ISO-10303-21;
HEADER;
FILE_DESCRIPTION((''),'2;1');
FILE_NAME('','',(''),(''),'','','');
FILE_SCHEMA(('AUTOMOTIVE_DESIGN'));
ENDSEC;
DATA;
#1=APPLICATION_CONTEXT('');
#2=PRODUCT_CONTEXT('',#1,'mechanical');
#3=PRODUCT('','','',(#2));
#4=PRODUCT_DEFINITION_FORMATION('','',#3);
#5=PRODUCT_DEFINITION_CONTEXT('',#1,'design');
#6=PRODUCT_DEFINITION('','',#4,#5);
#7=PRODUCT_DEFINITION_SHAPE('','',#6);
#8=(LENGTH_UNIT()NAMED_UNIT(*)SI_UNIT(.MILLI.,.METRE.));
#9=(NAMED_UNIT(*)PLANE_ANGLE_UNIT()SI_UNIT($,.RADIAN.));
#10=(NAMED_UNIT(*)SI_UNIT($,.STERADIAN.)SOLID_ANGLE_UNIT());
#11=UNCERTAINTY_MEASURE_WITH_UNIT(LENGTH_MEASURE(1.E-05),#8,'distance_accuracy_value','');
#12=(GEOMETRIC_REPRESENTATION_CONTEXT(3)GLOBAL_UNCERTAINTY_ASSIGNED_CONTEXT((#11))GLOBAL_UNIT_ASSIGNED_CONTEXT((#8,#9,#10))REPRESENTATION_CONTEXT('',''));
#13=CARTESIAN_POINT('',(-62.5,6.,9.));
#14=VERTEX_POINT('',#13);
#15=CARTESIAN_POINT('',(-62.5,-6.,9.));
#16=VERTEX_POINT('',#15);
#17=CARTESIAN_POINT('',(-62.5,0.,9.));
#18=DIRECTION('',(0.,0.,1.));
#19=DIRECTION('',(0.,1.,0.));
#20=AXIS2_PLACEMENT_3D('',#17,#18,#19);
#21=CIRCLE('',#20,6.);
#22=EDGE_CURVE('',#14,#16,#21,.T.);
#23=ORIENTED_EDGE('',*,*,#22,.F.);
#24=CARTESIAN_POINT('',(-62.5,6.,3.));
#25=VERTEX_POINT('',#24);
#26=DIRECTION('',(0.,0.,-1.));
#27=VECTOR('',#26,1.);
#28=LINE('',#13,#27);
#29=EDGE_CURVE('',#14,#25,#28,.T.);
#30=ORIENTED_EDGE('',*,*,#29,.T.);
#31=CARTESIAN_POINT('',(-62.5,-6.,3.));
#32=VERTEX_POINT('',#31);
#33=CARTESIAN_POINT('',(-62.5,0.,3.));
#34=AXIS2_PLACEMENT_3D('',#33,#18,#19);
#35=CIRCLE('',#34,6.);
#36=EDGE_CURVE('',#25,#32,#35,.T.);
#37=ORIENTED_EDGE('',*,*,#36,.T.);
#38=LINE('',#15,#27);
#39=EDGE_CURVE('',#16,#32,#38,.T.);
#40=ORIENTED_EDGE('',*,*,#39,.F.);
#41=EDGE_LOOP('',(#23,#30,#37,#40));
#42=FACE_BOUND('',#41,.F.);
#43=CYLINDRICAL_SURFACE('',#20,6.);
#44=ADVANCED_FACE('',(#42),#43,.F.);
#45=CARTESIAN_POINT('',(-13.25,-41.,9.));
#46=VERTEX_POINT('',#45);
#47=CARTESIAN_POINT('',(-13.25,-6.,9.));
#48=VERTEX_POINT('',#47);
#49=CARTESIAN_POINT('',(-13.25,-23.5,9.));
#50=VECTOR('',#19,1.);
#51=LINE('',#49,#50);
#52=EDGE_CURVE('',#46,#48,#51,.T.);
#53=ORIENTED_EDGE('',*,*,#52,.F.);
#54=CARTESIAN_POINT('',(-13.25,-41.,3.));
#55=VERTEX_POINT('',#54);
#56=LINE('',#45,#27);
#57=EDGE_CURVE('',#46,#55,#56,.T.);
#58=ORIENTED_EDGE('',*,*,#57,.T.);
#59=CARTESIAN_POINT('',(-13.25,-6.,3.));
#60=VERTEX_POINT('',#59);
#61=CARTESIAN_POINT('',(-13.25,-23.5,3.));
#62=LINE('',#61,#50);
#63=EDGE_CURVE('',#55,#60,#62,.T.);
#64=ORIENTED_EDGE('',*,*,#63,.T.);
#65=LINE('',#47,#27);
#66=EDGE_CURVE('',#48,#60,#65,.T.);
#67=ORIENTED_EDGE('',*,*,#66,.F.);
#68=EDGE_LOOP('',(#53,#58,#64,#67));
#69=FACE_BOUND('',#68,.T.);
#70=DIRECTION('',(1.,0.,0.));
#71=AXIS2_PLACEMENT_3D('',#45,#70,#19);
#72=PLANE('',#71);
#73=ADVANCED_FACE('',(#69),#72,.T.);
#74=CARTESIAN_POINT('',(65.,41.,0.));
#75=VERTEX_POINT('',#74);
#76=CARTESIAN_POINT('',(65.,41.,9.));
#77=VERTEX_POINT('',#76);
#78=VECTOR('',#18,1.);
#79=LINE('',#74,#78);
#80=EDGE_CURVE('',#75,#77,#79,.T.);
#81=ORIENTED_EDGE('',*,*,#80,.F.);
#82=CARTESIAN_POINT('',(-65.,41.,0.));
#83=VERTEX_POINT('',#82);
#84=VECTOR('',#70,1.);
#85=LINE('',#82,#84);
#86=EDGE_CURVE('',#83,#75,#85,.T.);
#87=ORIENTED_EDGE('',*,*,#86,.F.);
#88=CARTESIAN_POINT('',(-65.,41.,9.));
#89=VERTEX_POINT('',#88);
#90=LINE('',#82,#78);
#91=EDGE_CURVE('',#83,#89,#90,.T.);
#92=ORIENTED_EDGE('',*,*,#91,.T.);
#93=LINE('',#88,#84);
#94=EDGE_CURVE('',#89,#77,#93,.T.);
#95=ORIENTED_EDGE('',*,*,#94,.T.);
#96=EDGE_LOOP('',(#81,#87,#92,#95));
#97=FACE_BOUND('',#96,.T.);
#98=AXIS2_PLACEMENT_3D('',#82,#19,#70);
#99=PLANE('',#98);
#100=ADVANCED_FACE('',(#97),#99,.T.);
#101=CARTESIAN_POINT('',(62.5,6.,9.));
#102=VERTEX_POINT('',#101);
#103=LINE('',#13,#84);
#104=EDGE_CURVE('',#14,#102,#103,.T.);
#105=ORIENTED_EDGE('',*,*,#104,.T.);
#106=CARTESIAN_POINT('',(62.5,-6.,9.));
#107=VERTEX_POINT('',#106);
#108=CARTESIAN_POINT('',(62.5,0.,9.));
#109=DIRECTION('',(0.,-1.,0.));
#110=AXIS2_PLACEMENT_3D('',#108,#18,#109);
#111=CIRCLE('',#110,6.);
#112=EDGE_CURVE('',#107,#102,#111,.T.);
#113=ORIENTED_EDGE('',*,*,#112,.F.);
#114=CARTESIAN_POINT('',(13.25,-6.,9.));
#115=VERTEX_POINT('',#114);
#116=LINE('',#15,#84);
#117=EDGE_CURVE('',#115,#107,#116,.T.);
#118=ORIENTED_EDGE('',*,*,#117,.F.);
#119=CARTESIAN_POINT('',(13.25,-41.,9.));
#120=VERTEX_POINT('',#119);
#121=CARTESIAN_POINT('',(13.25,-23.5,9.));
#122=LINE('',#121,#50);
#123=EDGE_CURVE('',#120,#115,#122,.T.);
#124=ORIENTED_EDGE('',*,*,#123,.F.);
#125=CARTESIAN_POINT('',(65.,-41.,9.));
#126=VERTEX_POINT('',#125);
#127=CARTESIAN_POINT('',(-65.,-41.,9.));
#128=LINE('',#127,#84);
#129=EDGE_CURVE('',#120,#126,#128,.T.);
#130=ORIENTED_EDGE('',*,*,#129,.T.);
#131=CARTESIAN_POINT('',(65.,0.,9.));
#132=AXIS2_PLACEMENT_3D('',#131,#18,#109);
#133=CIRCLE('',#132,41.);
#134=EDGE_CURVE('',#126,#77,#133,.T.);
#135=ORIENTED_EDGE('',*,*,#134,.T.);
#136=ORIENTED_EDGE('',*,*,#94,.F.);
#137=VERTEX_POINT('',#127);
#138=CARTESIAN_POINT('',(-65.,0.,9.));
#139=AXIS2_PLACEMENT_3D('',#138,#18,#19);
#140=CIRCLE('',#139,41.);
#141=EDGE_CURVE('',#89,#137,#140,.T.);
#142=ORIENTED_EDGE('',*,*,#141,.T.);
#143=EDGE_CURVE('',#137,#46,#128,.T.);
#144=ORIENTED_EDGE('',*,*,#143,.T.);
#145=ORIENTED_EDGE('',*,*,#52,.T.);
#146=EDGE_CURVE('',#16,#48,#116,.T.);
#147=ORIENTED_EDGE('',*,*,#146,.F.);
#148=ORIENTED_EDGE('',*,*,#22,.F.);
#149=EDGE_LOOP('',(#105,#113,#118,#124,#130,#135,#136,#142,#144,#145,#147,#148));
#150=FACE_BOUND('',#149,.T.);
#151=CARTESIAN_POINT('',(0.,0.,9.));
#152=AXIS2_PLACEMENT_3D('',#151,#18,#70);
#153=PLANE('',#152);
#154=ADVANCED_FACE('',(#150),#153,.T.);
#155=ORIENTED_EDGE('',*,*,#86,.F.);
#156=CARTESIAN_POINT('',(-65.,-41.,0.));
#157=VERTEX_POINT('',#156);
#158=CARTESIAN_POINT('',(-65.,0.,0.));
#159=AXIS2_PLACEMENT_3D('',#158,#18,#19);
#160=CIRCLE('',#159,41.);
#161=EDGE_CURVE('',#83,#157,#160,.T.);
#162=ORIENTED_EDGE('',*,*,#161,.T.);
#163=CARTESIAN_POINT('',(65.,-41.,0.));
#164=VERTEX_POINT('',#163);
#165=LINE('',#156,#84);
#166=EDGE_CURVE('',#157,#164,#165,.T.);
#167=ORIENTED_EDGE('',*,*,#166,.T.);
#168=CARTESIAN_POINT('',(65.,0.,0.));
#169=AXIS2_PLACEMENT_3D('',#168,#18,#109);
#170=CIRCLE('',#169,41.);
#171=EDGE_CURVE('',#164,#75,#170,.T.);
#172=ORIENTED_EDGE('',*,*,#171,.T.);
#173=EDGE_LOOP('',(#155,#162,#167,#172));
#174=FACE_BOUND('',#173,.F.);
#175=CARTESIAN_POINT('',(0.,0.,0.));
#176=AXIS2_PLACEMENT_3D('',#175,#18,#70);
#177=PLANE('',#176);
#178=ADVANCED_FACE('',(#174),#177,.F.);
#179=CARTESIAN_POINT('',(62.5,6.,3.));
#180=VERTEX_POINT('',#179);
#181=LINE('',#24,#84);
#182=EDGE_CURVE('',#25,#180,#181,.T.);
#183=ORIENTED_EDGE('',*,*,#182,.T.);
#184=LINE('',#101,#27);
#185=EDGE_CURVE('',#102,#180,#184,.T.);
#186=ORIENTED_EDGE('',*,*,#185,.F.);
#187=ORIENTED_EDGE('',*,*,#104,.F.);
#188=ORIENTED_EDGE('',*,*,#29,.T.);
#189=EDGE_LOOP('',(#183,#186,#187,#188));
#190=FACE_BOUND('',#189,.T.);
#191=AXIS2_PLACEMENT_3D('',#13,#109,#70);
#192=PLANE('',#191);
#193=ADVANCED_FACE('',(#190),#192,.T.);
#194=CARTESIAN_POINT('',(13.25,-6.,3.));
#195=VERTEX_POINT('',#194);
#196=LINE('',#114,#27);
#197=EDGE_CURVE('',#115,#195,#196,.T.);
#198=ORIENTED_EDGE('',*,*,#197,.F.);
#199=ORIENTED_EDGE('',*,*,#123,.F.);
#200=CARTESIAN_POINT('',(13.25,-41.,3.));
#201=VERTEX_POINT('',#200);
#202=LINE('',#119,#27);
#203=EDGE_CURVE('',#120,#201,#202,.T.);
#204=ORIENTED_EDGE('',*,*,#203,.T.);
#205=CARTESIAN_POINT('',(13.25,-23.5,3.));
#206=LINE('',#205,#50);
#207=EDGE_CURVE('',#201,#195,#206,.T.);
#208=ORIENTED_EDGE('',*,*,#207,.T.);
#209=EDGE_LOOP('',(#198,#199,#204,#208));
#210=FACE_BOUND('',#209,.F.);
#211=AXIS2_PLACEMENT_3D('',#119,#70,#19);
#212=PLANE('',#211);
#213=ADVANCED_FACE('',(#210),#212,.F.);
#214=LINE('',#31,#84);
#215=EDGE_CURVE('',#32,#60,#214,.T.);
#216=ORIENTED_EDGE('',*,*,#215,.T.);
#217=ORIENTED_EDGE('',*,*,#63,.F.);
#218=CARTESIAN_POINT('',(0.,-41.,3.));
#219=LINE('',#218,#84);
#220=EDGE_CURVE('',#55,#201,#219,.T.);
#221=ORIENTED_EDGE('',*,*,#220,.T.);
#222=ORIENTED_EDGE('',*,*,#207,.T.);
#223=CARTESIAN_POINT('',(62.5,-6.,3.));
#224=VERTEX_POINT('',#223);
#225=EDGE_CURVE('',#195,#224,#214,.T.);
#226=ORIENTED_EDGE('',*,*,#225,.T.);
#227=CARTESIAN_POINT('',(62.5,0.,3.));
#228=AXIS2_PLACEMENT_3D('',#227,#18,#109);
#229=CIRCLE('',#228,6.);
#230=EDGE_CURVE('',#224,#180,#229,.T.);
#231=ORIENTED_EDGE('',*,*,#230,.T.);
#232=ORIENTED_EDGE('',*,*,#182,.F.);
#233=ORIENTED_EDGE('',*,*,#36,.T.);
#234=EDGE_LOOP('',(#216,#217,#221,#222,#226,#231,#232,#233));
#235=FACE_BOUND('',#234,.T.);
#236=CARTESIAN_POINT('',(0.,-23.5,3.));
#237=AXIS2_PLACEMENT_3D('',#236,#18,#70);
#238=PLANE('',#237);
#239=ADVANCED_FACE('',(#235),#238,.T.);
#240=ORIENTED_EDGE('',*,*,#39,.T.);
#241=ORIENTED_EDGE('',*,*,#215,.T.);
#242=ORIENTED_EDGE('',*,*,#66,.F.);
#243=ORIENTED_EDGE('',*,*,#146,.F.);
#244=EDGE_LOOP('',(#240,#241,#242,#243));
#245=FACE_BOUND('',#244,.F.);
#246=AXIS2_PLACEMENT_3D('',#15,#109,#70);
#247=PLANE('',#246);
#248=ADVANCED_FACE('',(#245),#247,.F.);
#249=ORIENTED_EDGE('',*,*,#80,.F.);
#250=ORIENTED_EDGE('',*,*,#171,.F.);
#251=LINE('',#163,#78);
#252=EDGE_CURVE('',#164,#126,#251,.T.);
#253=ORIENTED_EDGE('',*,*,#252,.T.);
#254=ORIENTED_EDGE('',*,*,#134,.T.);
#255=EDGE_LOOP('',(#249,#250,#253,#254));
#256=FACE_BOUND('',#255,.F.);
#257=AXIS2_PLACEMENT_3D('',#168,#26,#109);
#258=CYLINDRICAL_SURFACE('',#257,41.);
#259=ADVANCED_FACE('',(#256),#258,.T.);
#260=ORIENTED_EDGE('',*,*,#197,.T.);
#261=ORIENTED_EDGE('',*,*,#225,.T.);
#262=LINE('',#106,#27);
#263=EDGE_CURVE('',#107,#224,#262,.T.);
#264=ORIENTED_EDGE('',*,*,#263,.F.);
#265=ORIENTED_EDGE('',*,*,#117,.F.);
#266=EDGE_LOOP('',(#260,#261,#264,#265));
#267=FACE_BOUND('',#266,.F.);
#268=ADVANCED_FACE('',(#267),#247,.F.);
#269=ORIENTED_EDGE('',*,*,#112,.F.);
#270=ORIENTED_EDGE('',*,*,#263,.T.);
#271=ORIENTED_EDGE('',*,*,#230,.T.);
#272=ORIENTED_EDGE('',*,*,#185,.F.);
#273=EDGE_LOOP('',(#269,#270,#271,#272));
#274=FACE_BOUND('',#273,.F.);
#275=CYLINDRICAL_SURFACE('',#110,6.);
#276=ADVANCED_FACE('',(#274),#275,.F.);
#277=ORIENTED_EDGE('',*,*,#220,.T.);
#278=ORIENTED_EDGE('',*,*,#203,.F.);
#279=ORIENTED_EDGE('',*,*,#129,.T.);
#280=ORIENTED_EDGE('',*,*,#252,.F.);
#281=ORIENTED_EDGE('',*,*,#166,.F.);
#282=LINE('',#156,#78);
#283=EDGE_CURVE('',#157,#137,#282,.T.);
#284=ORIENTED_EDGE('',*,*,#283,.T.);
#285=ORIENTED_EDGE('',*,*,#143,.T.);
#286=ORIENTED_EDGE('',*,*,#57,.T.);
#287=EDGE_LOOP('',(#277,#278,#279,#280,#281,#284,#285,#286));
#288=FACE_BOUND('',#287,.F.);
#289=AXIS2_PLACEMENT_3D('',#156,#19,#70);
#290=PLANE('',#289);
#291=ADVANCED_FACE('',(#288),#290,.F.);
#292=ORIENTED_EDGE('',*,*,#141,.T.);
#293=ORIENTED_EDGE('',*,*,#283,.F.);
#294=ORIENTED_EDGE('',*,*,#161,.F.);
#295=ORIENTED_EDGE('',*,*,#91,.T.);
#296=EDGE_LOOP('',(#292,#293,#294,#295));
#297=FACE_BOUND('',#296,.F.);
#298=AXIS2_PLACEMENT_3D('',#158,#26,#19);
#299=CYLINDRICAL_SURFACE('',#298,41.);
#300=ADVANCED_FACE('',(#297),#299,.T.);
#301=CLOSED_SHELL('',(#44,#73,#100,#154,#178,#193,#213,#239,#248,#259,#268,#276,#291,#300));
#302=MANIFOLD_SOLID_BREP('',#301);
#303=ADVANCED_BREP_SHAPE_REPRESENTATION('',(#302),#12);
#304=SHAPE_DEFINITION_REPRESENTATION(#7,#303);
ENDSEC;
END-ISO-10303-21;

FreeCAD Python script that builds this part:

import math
import FreeCAD as App
import Part
import Sketcher
from FreeCAD import Vector


def add_polygon(sketch, points):
    """Adds a closed chain of lines whose ends are joined by coincident constraints."""
    first, n = sketch.GeometryCount, len(points)
    for a, b in zip(points, points[1:] + points[:1]):
        sketch.addGeometry(Part.LineSegment(App.Vector(*a, 0), App.Vector(*b, 0)), False)
    for i in range(n):
        sketch.addConstraint(Sketcher.Constraint("Coincident", first + i, 2, first + (i + 1) % n, 1))

doc = App.newDocument("Part")
body = doc.addObject("PartDesign::Body", "Body")

# Sketch on XY plane
sketch1 = doc.addObject("Sketcher::SketchObject", "Sketch")
body.addObject(sketch1)
sketch1.AttachmentSupport = (doc.XY_Plane, [""])
sketch1.MapMode = "FlatFace"
sketch1.addGeometry(Part.ArcOfCircle(Part.Circle(Vector(-65, 0, 0), Vector(0, 0, 1), 41), math.radians(90), math.radians(270)), False)
sketch1.addGeometry(Part.LineSegment(Vector(-65, -41, 0), Vector(65, -41, 0)), False)
sketch1.addGeometry(Part.ArcOfCircle(Part.Circle(Vector(65, 0, 0), Vector(0, 0, 1), 41), math.radians(-90), math.radians(90)), False)
sketch1.addGeometry(Part.LineSegment(Vector(65, 41, 0), Vector(-65, 41, 0)), False)
sketch1.addConstraint(Sketcher.Constraint("Tangent", 0, 2, 1, 1))
sketch1.addConstraint(Sketcher.Constraint("Tangent", 1, 2, 2, 1))
sketch1.addConstraint(Sketcher.Constraint("Tangent", 2, 2, 3, 1))
sketch1.addConstraint(Sketcher.Constraint("Tangent", 3, 2, 0, 1))
sketch1.addConstraint(Sketcher.Constraint("Horizontal", 1))
sketch1.addConstraint(Sketcher.Constraint("Horizontal", 3))
sketch1.addConstraint(Sketcher.Constraint("Symmetric", 0, 3, 2, 3, -1, 1))
sketch1.addConstraint(Sketcher.Constraint("Radius", 0, 41.0))
sketch1.addConstraint(Sketcher.Constraint("DistanceX", 1, 1, 1, 2, 130.0))
pad1 = doc.addObject("PartDesign::Pad", "Pad")
body.addObject(pad1)
pad1.Profile = sketch1
pad1.Length = 9

# Sketch on XY plane
sketch2 = doc.addObject("Sketcher::SketchObject", "Sketch001")
body.addObject(sketch2)
sketch2.AttachmentSupport = (doc.XY_Plane, [""])
sketch2.MapMode = "FlatFace"
sketch2.AttachmentOffset = App.Placement(Vector(0, 0, 9), App.Rotation())
sketch2.addGeometry(Part.ArcOfCircle(Part.Circle(Vector(-62, 0, 0), Vector(0, 0, 1), 6), math.radians(90), math.radians(270)), False)
sketch2.addGeometry(Part.LineSegment(Vector(-62, -6, 0), Vector(62, -6, 0)), False)
sketch2.addGeometry(Part.ArcOfCircle(Part.Circle(Vector(62, 0, 0), Vector(0, 0, 1), 6), math.radians(-90), math.radians(90)), False)
sketch2.addGeometry(Part.LineSegment(Vector(62, 6, 0), Vector(-62, 6, 0)), False)
sketch2.addConstraint(Sketcher.Constraint("Tangent", 0, 2, 1, 1))
sketch2.addConstraint(Sketcher.Constraint("Tangent", 1, 2, 2, 1))
sketch2.addConstraint(Sketcher.Constraint("Tangent", 2, 2, 3, 1))
sketch2.addConstraint(Sketcher.Constraint("Tangent", 3, 2, 0, 1))
sketch2.addConstraint(Sketcher.Constraint("Horizontal", 1))
sketch2.addConstraint(Sketcher.Constraint("Horizontal", 3))
sketch2.addConstraint(Sketcher.Constraint("Symmetric", 0, 3, 2, 3, -1, 1))
sketch2.addConstraint(Sketcher.Constraint("Radius", 0, 6.0))
sketch2.addConstraint(Sketcher.Constraint("DistanceX", 1, 1, 1, 2, 125.0))
pocket1 = doc.addObject("PartDesign::Pocket", "Pocket")
body.addObject(pocket1)
pocket1.Profile = sketch2
pocket1.Length = 6

# Sketch on XY plane
sketch3 = doc.addObject("Sketcher::SketchObject", "Sketch002")
body.addObject(sketch3)
sketch3.AttachmentSupport = (doc.XY_Plane, [""])
sketch3.MapMode = "FlatFace"
sketch3.AttachmentOffset = App.Placement(Vector(0, 0, 9), App.Rotation())
add_polygon(sketch3, [(-13, -6), (-13, -41), (13, -41), (13, -6)])  # lines 0-3
sketch3.addConstraint(Sketcher.Constraint("Vertical", 0))
sketch3.addConstraint(Sketcher.Constraint("Horizontal", 1))
sketch3.addConstraint(Sketcher.Constraint("Vertical", 2))
sketch3.addConstraint(Sketcher.Constraint("Horizontal", 3))
sketch3.addConstraint(Sketcher.Constraint("DistanceY", 0, 2, 0, 1, 35.0))
sketch3.addConstraint(Sketcher.Constraint("DistanceX", 1, 1, 1, 2, 26.5))
sketch3.addConstraint(Sketcher.Constraint("DistanceY", 0, 2, -1, 1, 41.0))
sketch3.addConstraint(Sketcher.Constraint("DistanceX", 0, 2, -1, 1, 13.25))
pocket2 = doc.addObject("PartDesign::Pocket", "Pocket001")
body.addObject(pocket2)
pocket2.Profile = sketch3
pocket2.Length = 6

doc.recompute()
